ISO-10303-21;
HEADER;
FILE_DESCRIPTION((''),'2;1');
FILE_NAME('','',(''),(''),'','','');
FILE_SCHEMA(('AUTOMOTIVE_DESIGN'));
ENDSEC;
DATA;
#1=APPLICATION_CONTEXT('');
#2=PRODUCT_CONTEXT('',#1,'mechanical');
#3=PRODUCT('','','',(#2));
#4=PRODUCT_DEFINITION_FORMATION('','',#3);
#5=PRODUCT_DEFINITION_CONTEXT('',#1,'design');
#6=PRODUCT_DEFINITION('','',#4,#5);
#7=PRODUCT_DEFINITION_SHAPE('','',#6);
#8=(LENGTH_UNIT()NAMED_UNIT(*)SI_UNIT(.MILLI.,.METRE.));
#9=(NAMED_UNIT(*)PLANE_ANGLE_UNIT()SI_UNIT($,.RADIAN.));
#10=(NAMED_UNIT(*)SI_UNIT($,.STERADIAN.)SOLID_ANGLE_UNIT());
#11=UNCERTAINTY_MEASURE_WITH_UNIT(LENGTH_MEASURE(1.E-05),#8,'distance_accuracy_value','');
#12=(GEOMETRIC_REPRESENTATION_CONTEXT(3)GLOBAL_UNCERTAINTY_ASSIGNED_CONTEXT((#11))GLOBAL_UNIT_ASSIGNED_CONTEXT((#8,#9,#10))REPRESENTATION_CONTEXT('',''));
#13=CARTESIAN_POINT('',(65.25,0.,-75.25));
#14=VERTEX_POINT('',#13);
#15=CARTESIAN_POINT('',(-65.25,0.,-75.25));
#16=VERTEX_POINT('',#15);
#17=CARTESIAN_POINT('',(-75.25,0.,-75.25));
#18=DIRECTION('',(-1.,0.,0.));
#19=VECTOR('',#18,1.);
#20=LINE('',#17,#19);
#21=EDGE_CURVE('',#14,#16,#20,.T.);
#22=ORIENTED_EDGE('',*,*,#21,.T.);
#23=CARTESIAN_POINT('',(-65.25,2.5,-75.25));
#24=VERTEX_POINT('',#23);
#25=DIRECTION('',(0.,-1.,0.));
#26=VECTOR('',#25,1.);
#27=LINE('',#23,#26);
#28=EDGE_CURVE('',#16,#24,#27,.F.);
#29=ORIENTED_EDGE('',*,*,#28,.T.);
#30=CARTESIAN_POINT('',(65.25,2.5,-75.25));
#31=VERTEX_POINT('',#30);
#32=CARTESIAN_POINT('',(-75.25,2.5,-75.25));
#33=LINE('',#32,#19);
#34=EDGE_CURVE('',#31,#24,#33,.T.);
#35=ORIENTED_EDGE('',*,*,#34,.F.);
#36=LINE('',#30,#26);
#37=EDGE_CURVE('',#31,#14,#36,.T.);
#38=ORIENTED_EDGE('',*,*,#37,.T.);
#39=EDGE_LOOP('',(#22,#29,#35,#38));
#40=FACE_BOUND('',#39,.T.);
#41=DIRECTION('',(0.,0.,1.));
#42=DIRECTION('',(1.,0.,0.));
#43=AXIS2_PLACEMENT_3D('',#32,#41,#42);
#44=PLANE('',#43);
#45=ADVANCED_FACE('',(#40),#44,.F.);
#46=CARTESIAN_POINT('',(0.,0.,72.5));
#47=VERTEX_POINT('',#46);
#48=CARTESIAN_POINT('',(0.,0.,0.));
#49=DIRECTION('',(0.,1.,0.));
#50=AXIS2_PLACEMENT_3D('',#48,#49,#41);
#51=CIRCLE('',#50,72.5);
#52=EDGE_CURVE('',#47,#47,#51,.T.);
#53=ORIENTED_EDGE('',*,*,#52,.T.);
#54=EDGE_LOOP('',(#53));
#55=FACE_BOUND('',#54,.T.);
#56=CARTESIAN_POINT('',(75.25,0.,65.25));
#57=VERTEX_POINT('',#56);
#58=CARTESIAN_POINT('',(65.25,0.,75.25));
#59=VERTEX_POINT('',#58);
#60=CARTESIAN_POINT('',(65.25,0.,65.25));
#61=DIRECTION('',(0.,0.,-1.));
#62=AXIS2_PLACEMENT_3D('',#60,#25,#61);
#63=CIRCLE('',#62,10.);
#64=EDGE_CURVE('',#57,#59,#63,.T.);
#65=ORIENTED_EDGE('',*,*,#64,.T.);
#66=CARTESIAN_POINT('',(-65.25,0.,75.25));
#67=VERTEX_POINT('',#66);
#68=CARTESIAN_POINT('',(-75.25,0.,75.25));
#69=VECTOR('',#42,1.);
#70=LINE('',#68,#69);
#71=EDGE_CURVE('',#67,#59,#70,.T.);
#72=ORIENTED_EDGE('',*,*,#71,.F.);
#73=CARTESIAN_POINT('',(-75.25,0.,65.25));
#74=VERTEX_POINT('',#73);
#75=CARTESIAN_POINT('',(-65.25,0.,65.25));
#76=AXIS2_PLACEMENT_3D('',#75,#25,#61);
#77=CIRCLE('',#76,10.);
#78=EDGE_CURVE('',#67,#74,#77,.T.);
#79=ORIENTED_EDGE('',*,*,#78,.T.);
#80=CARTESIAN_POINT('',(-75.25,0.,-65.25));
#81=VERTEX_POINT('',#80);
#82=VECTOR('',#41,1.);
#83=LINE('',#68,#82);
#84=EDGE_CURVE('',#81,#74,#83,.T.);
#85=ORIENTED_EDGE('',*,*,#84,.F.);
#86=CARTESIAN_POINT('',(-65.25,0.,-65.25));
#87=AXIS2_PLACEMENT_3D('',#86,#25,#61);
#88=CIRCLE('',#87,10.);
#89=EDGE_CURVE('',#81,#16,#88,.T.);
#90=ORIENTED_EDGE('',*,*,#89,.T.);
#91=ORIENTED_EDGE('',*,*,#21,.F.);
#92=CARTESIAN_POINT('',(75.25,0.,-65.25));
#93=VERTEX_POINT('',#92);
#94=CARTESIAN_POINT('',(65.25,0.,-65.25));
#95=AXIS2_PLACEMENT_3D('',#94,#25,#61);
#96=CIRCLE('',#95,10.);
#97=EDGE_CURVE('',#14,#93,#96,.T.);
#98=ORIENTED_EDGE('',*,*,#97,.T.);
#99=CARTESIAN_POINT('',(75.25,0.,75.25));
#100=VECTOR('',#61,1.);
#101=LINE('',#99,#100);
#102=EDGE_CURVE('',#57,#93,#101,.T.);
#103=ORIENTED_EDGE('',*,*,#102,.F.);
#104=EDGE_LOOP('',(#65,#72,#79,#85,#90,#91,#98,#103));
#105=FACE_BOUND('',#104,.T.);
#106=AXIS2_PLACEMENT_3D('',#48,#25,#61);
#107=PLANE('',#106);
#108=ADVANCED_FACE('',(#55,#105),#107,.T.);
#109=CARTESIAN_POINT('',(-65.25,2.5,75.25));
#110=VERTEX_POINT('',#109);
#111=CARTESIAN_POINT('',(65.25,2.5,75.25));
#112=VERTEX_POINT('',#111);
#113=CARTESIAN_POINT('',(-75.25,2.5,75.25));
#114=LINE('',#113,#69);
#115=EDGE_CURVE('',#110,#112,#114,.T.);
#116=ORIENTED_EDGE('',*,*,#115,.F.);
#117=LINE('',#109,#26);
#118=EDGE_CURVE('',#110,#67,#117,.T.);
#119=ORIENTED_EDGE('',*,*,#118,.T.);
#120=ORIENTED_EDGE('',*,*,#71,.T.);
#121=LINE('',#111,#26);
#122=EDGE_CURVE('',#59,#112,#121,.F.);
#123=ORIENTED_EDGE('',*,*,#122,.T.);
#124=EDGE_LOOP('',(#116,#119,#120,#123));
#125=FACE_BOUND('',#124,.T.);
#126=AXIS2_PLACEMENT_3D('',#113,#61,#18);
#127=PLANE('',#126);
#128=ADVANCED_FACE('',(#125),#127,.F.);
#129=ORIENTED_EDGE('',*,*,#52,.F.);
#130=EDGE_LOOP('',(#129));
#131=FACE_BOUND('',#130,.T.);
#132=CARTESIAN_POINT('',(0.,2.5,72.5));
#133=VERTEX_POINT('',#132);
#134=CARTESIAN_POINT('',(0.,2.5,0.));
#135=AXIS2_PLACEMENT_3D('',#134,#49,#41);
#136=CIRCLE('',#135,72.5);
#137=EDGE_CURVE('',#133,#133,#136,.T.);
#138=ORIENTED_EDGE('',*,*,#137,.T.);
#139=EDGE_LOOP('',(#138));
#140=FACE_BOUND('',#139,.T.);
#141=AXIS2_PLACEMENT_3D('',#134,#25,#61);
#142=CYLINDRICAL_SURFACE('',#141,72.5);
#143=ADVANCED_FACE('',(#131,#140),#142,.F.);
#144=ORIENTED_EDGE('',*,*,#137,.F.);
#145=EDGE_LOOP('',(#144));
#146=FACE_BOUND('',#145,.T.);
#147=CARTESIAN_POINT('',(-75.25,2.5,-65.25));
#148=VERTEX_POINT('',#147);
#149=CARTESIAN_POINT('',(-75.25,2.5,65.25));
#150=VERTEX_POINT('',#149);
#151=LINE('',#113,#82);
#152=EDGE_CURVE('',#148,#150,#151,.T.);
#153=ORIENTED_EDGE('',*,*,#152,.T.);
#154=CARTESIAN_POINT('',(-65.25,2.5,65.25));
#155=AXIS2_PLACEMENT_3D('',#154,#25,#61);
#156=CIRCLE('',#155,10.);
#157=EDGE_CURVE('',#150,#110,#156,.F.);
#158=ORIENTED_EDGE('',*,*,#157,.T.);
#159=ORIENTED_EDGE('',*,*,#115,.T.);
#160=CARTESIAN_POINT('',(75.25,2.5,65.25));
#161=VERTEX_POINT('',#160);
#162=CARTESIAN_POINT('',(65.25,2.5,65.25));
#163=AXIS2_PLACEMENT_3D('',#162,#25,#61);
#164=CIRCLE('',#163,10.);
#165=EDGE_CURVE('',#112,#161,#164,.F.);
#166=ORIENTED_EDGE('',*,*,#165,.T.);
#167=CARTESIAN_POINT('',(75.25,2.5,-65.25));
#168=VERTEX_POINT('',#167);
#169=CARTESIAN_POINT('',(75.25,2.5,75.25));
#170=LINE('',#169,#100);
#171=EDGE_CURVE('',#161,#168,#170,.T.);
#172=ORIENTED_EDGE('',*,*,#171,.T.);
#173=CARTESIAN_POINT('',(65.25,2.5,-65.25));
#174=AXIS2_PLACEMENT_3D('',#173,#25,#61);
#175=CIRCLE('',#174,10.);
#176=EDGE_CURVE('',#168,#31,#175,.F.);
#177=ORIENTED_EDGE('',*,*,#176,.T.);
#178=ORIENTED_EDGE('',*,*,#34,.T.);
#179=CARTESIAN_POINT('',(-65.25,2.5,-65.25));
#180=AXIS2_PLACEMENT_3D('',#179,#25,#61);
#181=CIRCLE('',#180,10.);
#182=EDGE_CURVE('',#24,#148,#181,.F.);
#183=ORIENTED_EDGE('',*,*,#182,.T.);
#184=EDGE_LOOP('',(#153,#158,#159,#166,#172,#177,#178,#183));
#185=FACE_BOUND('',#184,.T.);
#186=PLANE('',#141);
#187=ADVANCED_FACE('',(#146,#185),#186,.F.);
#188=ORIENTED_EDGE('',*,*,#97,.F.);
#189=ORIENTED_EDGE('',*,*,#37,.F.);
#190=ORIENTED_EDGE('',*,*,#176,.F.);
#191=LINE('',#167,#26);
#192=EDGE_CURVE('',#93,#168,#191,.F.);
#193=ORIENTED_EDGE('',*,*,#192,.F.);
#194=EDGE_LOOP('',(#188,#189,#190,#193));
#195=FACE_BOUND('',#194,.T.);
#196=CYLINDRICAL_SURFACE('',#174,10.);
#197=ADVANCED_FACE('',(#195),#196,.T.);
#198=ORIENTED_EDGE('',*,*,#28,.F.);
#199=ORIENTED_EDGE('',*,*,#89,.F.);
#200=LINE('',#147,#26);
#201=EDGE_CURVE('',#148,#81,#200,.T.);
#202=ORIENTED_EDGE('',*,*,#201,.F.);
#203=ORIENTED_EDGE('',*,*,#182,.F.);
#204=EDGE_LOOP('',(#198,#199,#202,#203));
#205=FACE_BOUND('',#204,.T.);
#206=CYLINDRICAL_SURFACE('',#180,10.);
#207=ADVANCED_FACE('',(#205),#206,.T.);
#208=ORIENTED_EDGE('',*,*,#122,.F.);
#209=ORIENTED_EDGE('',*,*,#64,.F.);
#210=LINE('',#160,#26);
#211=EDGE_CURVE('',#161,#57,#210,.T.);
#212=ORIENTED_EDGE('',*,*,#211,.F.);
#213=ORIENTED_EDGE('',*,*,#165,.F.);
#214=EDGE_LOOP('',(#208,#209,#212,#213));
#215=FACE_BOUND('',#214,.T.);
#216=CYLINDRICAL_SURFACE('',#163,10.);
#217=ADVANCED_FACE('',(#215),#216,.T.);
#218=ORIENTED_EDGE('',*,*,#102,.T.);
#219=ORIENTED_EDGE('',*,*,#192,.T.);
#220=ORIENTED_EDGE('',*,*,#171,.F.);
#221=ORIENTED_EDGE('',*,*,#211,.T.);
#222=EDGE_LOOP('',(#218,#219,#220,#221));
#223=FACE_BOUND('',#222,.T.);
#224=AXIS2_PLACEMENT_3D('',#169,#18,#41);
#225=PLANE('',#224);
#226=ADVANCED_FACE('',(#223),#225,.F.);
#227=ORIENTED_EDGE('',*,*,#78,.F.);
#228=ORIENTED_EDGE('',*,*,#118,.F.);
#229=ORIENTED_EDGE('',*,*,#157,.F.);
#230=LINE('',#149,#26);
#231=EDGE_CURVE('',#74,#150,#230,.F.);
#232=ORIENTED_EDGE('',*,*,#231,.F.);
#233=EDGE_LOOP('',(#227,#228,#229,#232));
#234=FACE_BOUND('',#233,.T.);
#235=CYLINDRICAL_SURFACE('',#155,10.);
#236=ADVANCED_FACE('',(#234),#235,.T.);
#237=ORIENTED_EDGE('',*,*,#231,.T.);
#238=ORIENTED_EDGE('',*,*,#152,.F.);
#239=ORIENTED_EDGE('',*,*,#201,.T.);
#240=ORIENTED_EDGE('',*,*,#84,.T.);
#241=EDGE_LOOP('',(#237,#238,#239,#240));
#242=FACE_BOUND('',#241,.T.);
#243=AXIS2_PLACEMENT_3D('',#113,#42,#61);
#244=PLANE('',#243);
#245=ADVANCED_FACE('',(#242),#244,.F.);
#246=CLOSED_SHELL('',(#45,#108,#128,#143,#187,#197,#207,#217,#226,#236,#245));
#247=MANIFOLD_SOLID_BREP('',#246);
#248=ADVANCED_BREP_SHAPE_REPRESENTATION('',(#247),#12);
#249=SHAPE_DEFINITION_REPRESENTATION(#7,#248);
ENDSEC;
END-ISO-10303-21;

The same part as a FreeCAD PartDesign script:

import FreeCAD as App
import Part
import Sketcher

V = App.Vector


def edges_at(feature, points):
    """Names of the edges that pass closest to the given points."""
    edges = feature.Shape.Edges
    near = lambda p: min(range(len(edges)), key=lambda i: edges[i].distToShape(Part.Vertex(*p))[0])
    return sorted({f"Edge{near(p) + 1}" for p in points})


def add_polygon(sketch, points):
    """Adds a closed chain of lines whose ends are joined by coincident constraints."""
    first, n = sketch.GeometryCount, len(points)
    for a, b in zip(points, points[1:] + points[:1]):
        sketch.addGeometry(Part.LineSegment(App.Vector(*a, 0), App.Vector(*b, 0)), False)
    for i in range(n):
        sketch.addConstraint(Sketcher.Constraint("Coincident", first + i, 2, first + (i + 1) % n, 1))

doc = App.newDocument("Part")
body = doc.addObject("PartDesign::Body", "Body")

# Sketch on XZ plane
sketch1 = body.newObject("Sketcher::SketchObject", "Sketch")
sketch1.AttachmentSupport = (doc.getObject("XZ_Plane"), [""])
sketch1.MapMode = "FlatFace"
add_polygon(sketch1, [(-75.25, -75.25), (-75.25, 75.25), (75.25, 75.25), (75.25, -75.25)])  # lines 0-3
sketch1.addGeometry(Part.Circle(V(0, 0, 0), V(0, 0, 1), 72.5), False)  # 4
sketch1.addConstraint([
    Sketcher.Constraint("Vertical", 0),
    Sketcher.Constraint("Horizontal", 1),
    Sketcher.Constraint("Vertical", 2),
    Sketcher.Constraint("Horizontal", 3),
    Sketcher.Constraint("Coincident", 4, 3, -1, 1),
    Sketcher.Constraint("Symmetric", 0, 2, 2, 2, -1, 1),
    Sketcher.Constraint("Equal", 3, 0),
    Sketcher.Constraint("Diameter", 4, 145.0),
    Sketcher.Constraint("DistanceX", 1, 1, 1, 2, 150.5),
])
pad1 = body.newObject("PartDesign::Pad", "Pad")
pad1.Profile = sketch1
pad1.Length = 2.5
pad1.Reversed = True
doc.recompute()

fillet = body.newObject("PartDesign::Fillet", "Fillet")
fillet.Base = (pad1, edges_at(pad1, [
    (75.25, 1.25, 75.25),
    (-75.25, 1.25, 75.25),
    (-75.25, 1.25, -75.25),
    (75.25, 1.25, -75.25),
]))
fillet.Radius = 10

doc.recompute()
